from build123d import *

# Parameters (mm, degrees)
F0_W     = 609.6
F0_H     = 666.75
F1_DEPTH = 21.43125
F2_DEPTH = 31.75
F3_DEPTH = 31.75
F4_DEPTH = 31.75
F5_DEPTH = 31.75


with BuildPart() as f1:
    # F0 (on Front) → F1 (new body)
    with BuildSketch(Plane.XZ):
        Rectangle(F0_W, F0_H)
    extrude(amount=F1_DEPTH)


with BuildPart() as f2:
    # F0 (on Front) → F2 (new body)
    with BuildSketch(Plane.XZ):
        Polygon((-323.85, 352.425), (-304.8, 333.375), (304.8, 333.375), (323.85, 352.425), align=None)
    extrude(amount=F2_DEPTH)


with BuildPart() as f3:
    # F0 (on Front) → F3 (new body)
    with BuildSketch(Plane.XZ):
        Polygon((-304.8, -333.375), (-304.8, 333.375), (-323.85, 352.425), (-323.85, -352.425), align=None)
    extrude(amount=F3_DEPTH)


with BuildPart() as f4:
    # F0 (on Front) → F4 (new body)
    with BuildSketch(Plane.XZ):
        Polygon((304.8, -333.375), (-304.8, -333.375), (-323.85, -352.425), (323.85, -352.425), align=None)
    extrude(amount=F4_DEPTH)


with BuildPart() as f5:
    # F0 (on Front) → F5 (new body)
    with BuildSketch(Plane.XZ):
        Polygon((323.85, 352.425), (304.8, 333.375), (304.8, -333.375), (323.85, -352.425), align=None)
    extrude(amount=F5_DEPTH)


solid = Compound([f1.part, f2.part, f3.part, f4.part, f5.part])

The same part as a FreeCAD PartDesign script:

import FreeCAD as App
import Part
import Sketcher

V = App.Vector
Q = App.Units.Quantity

doc = App.newDocument("Part")
body = doc.addObject("PartDesign::Body", "Body")

# Sketch on XZ plane
sketch1 = body.newObject("Sketcher::SketchObject", "Sketch")
sketch1.AttachmentSupport = (doc.getObject("XZ_Plane"), [""])
sketch1.MapMode = "FlatFace"
sketch1.addGeometry(Part.LineSegment(V(-305, 333, 0), V(-305, -333, 0)), False)
sketch1.addGeometry(Part.LineSegment(V(-305, -333, 0), V(305, -333, 0)), False)
sketch1.addGeometry(Part.LineSegment(V(305, -333, 0), V(305, 333, 0)), False)
sketch1.addGeometry(Part.LineSegment(V(305, 333, 0), V(-305, 333, 0)), False)
sketch1.addConstraint(Sketcher.Constraint("Coincident", 0, 2, 1, 1))
sketch1.addConstraint(Sketcher.Constraint("Coincident", 1, 2, 2, 1))
sketch1.addConstraint(Sketcher.Constraint("Coincident", 2, 2, 3, 1))
sketch1.addConstraint(Sketcher.Constraint("Coincident", 3, 2, 0, 1))
sketch1.addConstraint(Sketcher.Constraint("Vertical", 0))
sketch1.addConstraint(Sketcher.Constraint("Horizontal", 1))
sketch1.addConstraint(Sketcher.Constraint("Vertical", 2))
sketch1.addConstraint(Sketcher.Constraint("Horizontal", 3))
sketch1.addConstraint(Sketcher.Constraint("Symmetric", 0, 2, 2, 2, -1, 1))
sketch1.addConstraint(Sketcher.Constraint("DistanceX", 1, 1, 1, 2, Q("24 in")))
sketch1.addConstraint(Sketcher.Constraint("DistanceY", 0, 2, 0, 1, Q("26.25 in")))
pad1 = body.newObject("PartDesign::Pad", "Pad")
pad1.Profile = sketch1
pad1.Length = Q("0.84375 in")
body2 = doc.addObject("PartDesign::Body", "Body001")

# Sketch on XZ plane
sketch2 = body2.newObject("Sketcher::SketchObject", "Sketch001")
sketch2.AttachmentSupport = (doc.getObject("XZ_Plane001"), [""])
sketch2.MapMode = "FlatFace"
sketch2.addGeometry(Part.LineSegment(V(-324, 352, 0), V(-305, 333, 0)), False)
sketch2.addGeometry(Part.LineSegment(V(-305, 333, 0), V(305, 333, 0)), False)
sketch2.addGeometry(Part.LineSegment(V(305, 333, 0), V(324, 352, 0)), False)
sketch2.addGeometry(Part.LineSegment(V(324, 352, 0), V(-324, 352, 0)), False)
sketch2.addConstraint(Sketcher.Constraint("Coincident", 0, 2, 1, 1))
sketch2.addConstraint(Sketcher.Constraint("Coincident", 1, 2, 2, 1))
sketch2.addConstraint(Sketcher.Constraint("Coincident", 2, 2, 3, 1))
sketch2.addConstraint(Sketcher.Constraint("Coincident", 3, 2, 0, 1))
sketch2.addConstraint(Sketcher.Constraint("Horizontal", 1))
sketch2.addConstraint(Sketcher.Constraint("Horizontal", 3))
sketch2.addConstraint(Sketcher.Constraint("Perpendicular", 0, 2))
sketch2.addConstraint(Sketcher.Constraint("Equal", 0, 2))
sketch2.addConstraint(Sketcher.Constraint("DistanceX", 1, 1, 1, 2, Q("24 in")))
sketch2.addConstraint(Sketcher.Constraint("DistanceX", 3, 2, 3, 1, Q("25.5 in")))
sketch2.addConstraint(Sketcher.Constraint("DistanceX", 0, 2, -1, 1, Q("12 in")))
sketch2.addConstraint(Sketcher.Constraint("DistanceY", -1, 1, 0, 2, Q("13.125 in")))
pad2 = body2.newObject("PartDesign::Pad", "Pad001")
pad2.Profile = sketch2
pad2.Length = Q("1.25 in")
body3 = doc.addObject("PartDesign::Body", "Body002")

# Sketch on XZ plane
sketch3 = body3.newObject("Sketcher::SketchObject", "Sketch002")
sketch3.AttachmentSupport = (doc.getObject("XZ_Plane002"), [""])
sketch3.MapMode = "FlatFace"
sketch3.addGeometry(Part.LineSegment(V(-305, -333, 0), V(-305, 333, 0)), False)
sketch3.addGeometry(Part.LineSegment(V(-305, 333, 0), V(-324, 352, 0)), False)
sketch3.addGeometry(Part.LineSegment(V(-324, 352, 0), V(-324, -352, 0)), False)
sketch3.addGeometry(Part.LineSegment(V(-324, -352, 0), V(-305, -333, 0)), False)
sketch3.addConstraint(Sketcher.Constraint("Coincident", 0, 2, 1, 1))
sketch3.addConstraint(Sketcher.Constraint("Coincident", 1, 2, 2, 1))
sketch3.addConstraint(Sketcher.Constraint("Coincident", 2, 2, 3, 1))
sketch3.addConstraint(Sketcher.Constraint("Coincident", 3, 2, 0, 1))
sketch3.addConstraint(Sketcher.Constraint("Vertical", 0))
sketch3.addConstraint(Sketcher.Constraint("Vertical", 2))
sketch3.addConstraint(Sketcher.Constraint("Perpendicular", 1, 3))
sketch3.addConstraint(Sketcher.Constraint("Equal", 1, 3))
sketch3.addConstraint(Sketcher.Constraint("DistanceX", 0, 2, -1, 1, Q("12 in")))
sketch3.addConstraint(Sketcher.Constraint("DistanceY", 2, 2, 0, 2, Q("27 in")))
sketch3.addConstraint(Sketcher.Constraint("DistanceY", 0, 1, 0, 2, Q("26.25 in")))
sketch3.addConstraint(Sketcher.Constraint("DistanceY", -1, 1, 0, 2, Q("13.125 in")))
pad3 = body3.newObject("PartDesign::Pad", "Pad002")
pad3.Profile = sketch3
pad3.Length = Q("1.25 in")
body4 = doc.addObject("PartDesign::Body", "Body003")

# Sketch on XZ plane
sketch4 = body4.newObject("Sketcher::SketchObject", "Sketch003")
sketch4.AttachmentSupport = (doc.getObject("XZ_Plane003"), [""])
sketch4.MapMode = "FlatFace"
sketch4.addGeometry(Part.LineSegment(V(305, -333, 0), V(-305, -333, 0)), False)
sketch4.addGeometry(Part.LineSegment(V(-305, -333, 0), V(-324, -352, 0)), False)
sketch4.addGeometry(Part.LineSegment(V(-324, -352, 0), V(324, -352, 0)), False)
sketch4.addGeometry(Part.LineSegment(V(324, -352, 0), V(305, -333, 0)), False)
sketch4.addConstraint(Sketcher.Constraint("Coincident", 0, 2, 1, 1))
sketch4.addConstraint(Sketcher.Constraint("Coincident", 1, 2, 2, 1))
sketch4.addConstraint(Sketcher.Constraint("Coincident", 2, 2, 3, 1))
sketch4.addConstraint(Sketcher.Constraint("Coincident", 3, 2, 0, 1))
sketch4.addConstraint(Sketcher.Constraint("Horizontal", 0))
sketch4.addConstraint(Sketcher.Constraint("Horizontal", 2))
sketch4.addConstraint(Sketcher.Constraint("Perpendicular", 1, 3))
sketch4.addConstraint(Sketcher.Constraint("Equal", 1, 3))
sketch4.addConstraint(Sketcher.Constraint("DistanceX", 0, 2, 0, 1, Q("24 in")))
sketch4.addConstraint(Sketcher.Constraint("DistanceX", 2, 1, 2, 2, Q("25.5 in")))
sketch4.addConstraint(Sketcher.Constraint("DistanceX", 0, 2, -1, 1, Q("12 in")))
sketch4.addConstraint(Sketcher.Constraint("DistanceY", 0, 2, -1, 1, Q("13.125 in")))
pad4 = body4.newObject("PartDesign::Pad", "Pad003")
pad4.Profile = sketch4
pad4.Length = Q("1.25 in")
body5 = doc.addObject("PartDesign::Body", "Body004")

# Sketch on XZ plane
sketch5 = body5.newObject("Sketcher::SketchObject", "Sketch004")
sketch5.AttachmentSupport = (doc.getObject("XZ_Plane004"), [""])
sketch5.MapMode = "FlatFace"
sketch5.addGeometry(Part.LineSegment(V(324, 352, 0), V(305, 333, 0)), False)
sketch5.addGeometry(Part.LineSegment(V(305, 333, 0), V(305, -333, 0)), False)
sketch5.addGeometry(Part.LineSegment(V(305, -333, 0), V(324, -352, 0)), False)
sketch5.addGeometry(Part.LineSegment(V(324, -352, 0), V(324, 352, 0)), False)
sketch5.addConstraint(Sketcher.Constraint("Coincident", 0, 2, 1, 1))
sketch5.addConstraint(Sketcher.Constraint("Coincident", 1, 2, 2, 1))
sketch5.addConstraint(Sketcher.Constraint("Coincident", 2, 2, 3, 1))
sketch5.addConstraint(Sketcher.Constraint("Coincident", 3, 2, 0, 1))
sketch5.addConstraint(Sketcher.Constraint("Vertical", 1))
sketch5.addConstraint(Sketcher.Constraint("Vertical", 3))
sketch5.addConstraint(Sketcher.Constraint("Perpendicular", 0, 2))
sketch5.addConstraint(Sketcher.Constraint("Equal", 0, 2))
sketch5.addConstraint(Sketcher.Constraint("DistanceX", -1, 1, 0, 2, Q("12 in")))
sketch5.addConstraint(Sketcher.Constraint("DistanceY", 2, 2, 0, 2, Q("27 in")))
sketch5.addConstraint(Sketcher.Constraint("DistanceY", 1, 2, 1, 1, Q("26.25 in")))
sketch5.addConstraint(Sketcher.Constraint("DistanceY", -1, 1, 0, 2, Q("13.125 in")))
pad5 = body5.newObject("PartDesign::Pad", "Pad004")
pad5.Profile = sketch5
pad5.Length = Q("1.25 in")

doc.recompute()
